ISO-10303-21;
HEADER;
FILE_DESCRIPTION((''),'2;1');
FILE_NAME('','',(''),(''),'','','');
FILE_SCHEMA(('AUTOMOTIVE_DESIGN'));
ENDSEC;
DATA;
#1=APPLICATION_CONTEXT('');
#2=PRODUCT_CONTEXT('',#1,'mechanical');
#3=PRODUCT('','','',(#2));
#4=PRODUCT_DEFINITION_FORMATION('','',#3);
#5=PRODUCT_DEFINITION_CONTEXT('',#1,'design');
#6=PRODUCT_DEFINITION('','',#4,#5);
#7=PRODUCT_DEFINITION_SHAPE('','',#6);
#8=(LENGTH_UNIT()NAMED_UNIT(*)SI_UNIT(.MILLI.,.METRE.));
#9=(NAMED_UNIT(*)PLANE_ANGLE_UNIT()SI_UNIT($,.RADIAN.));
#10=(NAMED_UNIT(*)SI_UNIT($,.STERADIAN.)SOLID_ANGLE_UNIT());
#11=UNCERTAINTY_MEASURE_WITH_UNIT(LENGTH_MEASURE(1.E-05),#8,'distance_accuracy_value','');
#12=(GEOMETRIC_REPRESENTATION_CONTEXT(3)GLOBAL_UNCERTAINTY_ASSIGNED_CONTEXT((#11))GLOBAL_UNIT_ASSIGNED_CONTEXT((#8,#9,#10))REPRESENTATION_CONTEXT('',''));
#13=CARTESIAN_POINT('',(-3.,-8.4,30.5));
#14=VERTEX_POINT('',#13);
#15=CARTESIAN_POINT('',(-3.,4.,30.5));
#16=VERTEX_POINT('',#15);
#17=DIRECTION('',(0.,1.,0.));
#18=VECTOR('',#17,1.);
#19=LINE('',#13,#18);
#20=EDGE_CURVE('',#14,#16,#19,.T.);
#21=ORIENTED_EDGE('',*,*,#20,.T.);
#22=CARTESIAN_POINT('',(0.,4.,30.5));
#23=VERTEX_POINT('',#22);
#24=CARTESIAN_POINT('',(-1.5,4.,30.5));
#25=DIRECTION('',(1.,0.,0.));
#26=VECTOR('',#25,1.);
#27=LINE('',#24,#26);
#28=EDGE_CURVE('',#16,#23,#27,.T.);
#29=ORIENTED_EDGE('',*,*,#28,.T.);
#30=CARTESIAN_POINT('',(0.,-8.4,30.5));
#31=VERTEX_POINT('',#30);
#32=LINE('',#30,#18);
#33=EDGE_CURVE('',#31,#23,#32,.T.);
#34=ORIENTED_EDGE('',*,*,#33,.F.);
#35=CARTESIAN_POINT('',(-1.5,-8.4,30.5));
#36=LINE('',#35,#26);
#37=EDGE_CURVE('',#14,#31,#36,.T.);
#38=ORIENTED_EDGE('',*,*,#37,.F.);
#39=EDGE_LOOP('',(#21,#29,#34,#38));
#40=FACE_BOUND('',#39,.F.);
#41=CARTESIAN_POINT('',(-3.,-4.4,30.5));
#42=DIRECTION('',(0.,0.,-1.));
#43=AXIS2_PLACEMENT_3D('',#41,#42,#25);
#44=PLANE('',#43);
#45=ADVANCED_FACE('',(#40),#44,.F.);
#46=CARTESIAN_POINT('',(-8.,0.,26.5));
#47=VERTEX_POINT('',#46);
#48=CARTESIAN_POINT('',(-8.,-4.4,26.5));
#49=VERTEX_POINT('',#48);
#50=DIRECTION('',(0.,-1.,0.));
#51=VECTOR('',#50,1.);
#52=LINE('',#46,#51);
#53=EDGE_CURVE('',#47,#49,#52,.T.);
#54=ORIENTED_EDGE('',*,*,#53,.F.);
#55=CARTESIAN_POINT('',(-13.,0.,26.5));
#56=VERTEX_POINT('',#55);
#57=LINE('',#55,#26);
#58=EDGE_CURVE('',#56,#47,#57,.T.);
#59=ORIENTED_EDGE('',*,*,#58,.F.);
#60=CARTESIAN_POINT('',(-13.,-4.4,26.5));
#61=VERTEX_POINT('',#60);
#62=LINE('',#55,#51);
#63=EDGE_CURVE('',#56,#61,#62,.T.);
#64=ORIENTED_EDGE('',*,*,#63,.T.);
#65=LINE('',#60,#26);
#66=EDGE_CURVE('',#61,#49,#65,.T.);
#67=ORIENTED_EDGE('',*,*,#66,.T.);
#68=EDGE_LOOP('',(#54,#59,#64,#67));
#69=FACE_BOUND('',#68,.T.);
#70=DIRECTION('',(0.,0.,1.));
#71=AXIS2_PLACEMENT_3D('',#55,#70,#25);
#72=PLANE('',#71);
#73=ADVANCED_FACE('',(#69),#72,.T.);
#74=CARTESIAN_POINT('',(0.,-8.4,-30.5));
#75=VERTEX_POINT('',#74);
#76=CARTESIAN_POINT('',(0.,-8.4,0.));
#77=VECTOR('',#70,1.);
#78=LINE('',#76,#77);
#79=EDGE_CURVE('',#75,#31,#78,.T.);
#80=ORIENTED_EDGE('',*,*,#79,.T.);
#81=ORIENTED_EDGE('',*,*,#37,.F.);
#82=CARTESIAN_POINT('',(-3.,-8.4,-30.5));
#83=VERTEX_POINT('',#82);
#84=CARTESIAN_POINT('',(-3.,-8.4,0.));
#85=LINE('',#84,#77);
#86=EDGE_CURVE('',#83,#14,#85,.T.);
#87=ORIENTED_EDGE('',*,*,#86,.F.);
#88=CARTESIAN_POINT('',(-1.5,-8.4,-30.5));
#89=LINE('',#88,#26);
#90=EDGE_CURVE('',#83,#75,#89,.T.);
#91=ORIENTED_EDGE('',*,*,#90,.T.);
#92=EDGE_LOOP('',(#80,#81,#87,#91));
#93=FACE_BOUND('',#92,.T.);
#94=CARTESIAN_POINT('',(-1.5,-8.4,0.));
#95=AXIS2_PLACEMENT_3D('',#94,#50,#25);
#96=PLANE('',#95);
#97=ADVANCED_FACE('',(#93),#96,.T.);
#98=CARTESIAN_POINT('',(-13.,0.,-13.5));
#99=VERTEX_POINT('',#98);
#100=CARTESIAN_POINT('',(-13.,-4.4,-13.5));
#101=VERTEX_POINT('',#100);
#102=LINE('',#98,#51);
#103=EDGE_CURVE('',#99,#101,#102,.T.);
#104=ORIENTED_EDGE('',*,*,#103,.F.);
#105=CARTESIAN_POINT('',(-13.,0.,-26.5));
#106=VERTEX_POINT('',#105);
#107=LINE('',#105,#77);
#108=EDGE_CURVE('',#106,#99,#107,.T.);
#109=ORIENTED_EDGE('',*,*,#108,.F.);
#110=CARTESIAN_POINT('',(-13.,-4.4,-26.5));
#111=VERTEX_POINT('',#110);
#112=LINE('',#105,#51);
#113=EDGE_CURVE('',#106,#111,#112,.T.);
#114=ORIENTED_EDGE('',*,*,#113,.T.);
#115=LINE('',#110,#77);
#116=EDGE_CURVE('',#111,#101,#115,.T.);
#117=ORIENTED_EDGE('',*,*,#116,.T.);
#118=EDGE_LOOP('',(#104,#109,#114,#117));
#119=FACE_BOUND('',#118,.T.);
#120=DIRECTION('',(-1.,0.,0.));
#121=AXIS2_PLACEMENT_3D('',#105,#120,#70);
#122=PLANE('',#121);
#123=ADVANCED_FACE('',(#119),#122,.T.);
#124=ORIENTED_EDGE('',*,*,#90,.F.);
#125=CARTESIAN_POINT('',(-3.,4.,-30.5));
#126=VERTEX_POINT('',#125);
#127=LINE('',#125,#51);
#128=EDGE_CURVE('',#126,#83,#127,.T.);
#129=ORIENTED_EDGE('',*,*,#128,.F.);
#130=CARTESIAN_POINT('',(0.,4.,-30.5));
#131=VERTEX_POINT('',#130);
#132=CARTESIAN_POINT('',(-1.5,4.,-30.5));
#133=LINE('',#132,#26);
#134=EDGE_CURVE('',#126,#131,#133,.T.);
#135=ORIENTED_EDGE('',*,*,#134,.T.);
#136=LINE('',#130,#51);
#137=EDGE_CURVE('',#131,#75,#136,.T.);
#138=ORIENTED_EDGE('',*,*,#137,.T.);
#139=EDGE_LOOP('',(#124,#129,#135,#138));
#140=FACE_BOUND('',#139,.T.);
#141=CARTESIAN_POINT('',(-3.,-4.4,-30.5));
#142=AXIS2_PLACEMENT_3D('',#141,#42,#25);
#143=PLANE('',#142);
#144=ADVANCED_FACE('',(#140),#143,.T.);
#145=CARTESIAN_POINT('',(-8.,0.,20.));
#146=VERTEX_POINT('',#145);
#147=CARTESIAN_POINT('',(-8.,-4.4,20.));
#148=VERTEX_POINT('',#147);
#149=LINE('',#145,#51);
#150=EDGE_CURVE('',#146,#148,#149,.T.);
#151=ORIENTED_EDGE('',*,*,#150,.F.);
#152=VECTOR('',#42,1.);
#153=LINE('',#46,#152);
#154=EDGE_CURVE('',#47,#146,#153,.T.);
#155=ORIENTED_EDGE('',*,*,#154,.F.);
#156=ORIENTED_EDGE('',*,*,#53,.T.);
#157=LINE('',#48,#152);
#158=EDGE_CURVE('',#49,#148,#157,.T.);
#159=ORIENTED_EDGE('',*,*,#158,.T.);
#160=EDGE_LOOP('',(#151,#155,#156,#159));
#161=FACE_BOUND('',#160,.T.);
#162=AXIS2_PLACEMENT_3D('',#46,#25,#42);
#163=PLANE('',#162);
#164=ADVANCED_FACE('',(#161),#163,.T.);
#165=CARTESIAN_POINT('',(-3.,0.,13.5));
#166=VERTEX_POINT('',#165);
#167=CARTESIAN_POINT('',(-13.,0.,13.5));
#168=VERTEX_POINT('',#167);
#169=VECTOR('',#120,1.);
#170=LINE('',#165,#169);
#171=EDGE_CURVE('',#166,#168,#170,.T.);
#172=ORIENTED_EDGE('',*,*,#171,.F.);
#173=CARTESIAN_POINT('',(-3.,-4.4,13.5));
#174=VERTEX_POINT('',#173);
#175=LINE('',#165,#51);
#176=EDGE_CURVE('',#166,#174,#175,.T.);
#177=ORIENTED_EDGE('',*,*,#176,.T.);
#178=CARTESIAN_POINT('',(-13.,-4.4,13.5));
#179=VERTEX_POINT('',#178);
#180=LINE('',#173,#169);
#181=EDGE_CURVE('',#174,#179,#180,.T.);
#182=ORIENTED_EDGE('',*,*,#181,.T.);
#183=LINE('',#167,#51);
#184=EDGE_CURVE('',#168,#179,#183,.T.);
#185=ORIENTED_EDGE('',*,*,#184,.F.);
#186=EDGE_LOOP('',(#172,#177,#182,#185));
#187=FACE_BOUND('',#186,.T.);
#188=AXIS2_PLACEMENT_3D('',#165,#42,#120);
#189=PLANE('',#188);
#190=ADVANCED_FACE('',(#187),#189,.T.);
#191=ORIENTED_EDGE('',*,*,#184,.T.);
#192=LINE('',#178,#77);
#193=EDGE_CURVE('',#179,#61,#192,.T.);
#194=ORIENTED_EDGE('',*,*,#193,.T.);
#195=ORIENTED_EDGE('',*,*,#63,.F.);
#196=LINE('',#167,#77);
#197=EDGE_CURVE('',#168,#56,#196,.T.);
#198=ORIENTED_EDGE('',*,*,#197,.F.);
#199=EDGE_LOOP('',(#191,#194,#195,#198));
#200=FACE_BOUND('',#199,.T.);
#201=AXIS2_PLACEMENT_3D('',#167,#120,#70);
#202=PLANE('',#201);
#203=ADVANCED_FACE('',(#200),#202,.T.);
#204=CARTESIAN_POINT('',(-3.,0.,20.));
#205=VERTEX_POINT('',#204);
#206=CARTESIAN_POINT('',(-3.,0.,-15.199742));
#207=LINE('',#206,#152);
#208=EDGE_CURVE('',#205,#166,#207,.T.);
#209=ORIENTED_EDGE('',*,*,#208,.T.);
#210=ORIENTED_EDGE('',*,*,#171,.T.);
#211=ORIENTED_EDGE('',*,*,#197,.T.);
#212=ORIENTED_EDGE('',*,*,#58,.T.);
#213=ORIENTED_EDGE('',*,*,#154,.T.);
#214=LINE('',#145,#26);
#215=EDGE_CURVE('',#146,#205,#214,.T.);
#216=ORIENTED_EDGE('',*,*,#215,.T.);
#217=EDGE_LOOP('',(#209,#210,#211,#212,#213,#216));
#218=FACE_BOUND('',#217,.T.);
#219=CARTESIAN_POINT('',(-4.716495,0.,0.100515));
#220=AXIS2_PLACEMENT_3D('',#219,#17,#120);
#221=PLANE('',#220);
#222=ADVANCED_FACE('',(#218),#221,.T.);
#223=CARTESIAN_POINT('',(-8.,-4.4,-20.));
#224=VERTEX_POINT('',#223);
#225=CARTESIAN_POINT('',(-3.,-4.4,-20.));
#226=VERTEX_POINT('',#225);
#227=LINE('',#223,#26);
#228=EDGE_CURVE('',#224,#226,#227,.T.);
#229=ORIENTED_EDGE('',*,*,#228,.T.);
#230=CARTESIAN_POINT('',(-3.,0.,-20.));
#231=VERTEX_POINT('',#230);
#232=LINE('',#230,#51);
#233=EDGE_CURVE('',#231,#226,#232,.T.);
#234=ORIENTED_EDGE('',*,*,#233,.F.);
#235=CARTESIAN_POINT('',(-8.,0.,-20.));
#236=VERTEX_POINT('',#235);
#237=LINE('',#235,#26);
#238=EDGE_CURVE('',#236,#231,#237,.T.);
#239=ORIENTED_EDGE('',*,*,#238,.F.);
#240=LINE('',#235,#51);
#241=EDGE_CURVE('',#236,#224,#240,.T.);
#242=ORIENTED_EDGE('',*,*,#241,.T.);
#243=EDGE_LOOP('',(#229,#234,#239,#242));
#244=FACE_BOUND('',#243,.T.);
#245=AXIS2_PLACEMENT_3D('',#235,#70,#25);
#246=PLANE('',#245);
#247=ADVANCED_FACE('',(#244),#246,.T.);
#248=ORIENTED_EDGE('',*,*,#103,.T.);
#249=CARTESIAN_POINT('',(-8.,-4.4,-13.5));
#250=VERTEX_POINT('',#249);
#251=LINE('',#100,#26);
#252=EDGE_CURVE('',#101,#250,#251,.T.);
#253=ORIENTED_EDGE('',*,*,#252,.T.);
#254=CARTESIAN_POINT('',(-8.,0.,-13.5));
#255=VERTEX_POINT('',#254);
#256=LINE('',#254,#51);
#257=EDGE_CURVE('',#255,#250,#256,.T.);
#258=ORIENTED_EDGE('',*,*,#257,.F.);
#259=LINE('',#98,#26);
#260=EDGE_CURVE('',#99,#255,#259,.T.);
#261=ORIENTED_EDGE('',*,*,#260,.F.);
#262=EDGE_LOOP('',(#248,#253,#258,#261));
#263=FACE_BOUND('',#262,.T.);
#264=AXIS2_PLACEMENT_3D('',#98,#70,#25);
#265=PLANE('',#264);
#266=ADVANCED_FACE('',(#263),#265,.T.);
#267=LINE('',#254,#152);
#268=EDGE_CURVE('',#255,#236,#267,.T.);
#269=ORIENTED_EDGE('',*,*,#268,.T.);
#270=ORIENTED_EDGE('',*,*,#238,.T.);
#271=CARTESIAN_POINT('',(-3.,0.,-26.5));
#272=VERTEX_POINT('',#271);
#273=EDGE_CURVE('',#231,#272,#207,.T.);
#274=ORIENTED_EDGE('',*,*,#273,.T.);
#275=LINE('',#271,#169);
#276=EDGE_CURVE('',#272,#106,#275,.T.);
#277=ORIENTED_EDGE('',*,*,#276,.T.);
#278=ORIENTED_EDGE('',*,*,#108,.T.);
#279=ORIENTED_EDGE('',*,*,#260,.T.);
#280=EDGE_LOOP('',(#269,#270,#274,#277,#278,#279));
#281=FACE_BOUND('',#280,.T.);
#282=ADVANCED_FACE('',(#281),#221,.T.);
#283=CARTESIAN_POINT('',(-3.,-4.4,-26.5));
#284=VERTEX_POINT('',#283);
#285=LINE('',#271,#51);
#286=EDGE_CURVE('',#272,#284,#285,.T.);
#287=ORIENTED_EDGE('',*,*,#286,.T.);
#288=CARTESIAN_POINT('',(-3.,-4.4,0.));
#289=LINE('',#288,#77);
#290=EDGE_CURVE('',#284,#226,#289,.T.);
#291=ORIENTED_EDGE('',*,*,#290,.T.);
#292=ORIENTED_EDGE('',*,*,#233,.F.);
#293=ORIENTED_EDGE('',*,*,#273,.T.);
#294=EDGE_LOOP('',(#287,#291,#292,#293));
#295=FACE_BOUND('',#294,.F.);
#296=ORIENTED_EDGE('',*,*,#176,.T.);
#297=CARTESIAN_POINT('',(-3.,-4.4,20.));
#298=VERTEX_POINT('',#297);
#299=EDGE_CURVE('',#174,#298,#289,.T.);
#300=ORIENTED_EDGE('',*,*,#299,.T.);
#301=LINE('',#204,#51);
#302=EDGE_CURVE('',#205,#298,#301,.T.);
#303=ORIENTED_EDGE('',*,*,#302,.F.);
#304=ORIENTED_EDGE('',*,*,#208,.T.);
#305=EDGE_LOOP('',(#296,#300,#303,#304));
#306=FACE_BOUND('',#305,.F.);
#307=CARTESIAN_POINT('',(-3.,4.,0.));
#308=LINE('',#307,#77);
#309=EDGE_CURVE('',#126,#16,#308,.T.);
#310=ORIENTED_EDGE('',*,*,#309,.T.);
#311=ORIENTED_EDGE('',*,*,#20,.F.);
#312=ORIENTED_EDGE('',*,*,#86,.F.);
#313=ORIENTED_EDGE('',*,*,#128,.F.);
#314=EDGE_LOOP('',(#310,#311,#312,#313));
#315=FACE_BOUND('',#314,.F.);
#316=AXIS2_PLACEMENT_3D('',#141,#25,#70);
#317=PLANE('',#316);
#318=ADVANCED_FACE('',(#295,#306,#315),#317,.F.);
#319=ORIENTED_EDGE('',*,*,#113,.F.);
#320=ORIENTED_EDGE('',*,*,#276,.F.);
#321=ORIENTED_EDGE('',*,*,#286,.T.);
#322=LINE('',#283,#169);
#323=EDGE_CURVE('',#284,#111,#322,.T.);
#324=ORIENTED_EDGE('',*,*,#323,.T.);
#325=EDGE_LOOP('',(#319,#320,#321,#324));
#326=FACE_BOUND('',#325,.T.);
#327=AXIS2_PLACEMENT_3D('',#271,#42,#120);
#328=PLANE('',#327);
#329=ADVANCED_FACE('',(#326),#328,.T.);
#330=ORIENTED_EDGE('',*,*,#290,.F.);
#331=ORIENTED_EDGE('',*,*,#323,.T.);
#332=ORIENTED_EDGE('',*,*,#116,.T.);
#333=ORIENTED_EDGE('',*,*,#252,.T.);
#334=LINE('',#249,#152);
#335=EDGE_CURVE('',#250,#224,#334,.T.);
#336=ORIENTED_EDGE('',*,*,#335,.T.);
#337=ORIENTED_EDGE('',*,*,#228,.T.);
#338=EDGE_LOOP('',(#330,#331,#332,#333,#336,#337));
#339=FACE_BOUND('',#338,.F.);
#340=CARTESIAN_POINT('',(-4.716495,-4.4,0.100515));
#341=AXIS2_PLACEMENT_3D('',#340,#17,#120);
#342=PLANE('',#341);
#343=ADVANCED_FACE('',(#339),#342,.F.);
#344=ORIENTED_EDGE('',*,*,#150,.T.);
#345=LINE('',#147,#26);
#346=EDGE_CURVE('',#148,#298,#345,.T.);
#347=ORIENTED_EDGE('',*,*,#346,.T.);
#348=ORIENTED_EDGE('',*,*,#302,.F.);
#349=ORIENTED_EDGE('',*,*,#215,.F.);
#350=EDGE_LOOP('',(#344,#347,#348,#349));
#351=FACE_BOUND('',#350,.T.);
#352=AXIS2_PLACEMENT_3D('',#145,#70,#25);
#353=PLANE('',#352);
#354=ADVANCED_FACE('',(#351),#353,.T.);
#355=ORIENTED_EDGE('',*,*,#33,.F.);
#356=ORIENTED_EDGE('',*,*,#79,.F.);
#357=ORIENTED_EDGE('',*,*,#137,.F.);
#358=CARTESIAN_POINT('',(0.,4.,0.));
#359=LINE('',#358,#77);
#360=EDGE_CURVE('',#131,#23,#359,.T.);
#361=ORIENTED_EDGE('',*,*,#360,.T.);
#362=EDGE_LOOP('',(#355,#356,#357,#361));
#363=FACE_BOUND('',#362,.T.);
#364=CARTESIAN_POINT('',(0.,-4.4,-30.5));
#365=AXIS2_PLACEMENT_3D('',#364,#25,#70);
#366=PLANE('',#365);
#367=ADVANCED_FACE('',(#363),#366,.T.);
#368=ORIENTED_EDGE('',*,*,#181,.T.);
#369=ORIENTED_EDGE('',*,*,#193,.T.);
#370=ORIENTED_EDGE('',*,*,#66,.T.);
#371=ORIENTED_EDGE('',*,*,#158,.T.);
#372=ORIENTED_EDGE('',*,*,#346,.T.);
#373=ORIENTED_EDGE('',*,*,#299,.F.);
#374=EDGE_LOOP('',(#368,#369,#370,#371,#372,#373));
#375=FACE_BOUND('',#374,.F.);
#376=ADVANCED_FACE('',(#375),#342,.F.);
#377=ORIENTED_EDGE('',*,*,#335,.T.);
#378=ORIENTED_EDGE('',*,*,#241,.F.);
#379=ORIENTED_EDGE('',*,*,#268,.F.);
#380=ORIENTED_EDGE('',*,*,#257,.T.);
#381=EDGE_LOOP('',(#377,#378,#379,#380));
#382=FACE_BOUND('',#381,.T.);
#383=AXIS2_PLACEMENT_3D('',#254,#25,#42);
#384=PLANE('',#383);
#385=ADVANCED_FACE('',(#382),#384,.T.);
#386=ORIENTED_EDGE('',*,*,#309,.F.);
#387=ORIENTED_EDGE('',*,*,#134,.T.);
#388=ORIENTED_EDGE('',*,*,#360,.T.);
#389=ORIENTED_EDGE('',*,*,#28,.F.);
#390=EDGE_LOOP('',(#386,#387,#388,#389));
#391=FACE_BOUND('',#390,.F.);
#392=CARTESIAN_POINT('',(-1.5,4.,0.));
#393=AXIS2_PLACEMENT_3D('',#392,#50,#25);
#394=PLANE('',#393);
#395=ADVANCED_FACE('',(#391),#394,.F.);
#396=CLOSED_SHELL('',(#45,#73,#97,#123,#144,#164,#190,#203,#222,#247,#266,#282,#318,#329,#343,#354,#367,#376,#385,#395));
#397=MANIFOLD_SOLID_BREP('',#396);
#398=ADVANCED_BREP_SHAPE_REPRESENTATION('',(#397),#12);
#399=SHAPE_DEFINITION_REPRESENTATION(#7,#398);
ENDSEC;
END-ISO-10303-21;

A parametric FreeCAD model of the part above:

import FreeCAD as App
import Part
import Sketcher

doc = App.newDocument("Part")
body = doc.addObject("PartDesign::Body", "Body")

# Sketch on XZ plane
sketch1 = doc.addObject("Sketcher::SketchObject", "Sketch")
body.addObject(sketch1)
sketch1.AttachmentSupport = (doc.XZ_Plane, [""])
sketch1.MapMode = "FlatFace"
sketch1.addGeometry(Part.LineSegment(App.Vector(-3, -26.5, 0), App.Vector(-3, -30.5, 0)), False)
sketch1.addGeometry(Part.LineSegment(App.Vector(-3, -30.5, 0), App.Vector(0, -30.5, 0)), False)
sketch1.addGeometry(Part.LineSegment(App.Vector(0, -30.5, 0), App.Vector(0, 30.5, 0)), False)
sketch1.addGeometry(Part.LineSegment(App.Vector(0, 30.5, 0), App.Vector(-3, 30.5, 0)), False)
sketch1.addGeometry(Part.LineSegment(App.Vector(-3, 30.5, 0), App.Vector(-3, 20, 0)), False)
sketch1.addGeometry(Part.LineSegment(App.Vector(-3, 20, 0), App.Vector(-8, 20, 0)), False)
sketch1.addGeometry(Part.LineSegment(App.Vector(-8, 20, 0), App.Vector(-8, 26.5, 0)), False)
sketch1.addGeometry(Part.LineSegment(App.Vector(-8, 26.5, 0), App.Vector(-13, 26.5, 0)), False)
sketch1.addGeometry(Part.LineSegment(App.Vector(-13, 26.5, 0), App.Vector(-13, 13.5, 0)), False)
sketch1.addGeometry(Part.LineSegment(App.Vector(-13, 13.5, 0), App.Vector(-3, 13.5, 0)), False)
sketch1.addGeometry(Part.LineSegment(App.Vector(-3, 13.5, 0), App.Vector(-3, -20, 0)), False)
sketch1.addGeometry(Part.LineSegment(App.Vector(-3, -20, 0), App.Vector(-8, -20, 0)), False)
sketch1.addGeometry(Part.LineSegment(App.Vector(-8, -20, 0), App.Vector(-8, -13.5, 0)), False)
sketch1.addGeometry(Part.LineSegment(App.Vector(-8, -13.5, 0), App.Vector(-13, -13.5, 0)), False)
sketch1.addGeometry(Part.LineSegment(App.Vector(-13, -13.5, 0), App.Vector(-13, -26.5, 0)), False)
sketch1.addGeometry(Part.LineSegment(App.Vector(-13, -26.5, 0), App.Vector(-3, -26.5, 0)), False)
sketch1.addConstraint(Sketcher.Constraint("Coincident", 0, 2, 1, 1))
sketch1.addConstraint(Sketcher.Constraint("Coincident", 1, 2, 2, 1))
sketch1.addConstraint(Sketcher.Constraint("Coincident", 2, 2, 3, 1))
sketch1.addConstraint(Sketcher.Constraint("Coincident", 3, 2, 4, 1))
sketch1.addConstraint(Sketcher.Constraint("Coincident", 4, 2, 5, 1))
sketch1.addConstraint(Sketcher.Constraint("Coincident", 5, 2, 6, 1))
sketch1.addConstraint(Sketcher.Constraint("Coincident", 6, 2, 7, 1))
sketch1.addConstraint(Sketcher.Constraint("Coincident", 7, 2, 8, 1))
sketch1.addConstraint(Sketcher.Constraint("Coincident", 8, 2, 9, 1))
sketch1.addConstraint(Sketcher.Constraint("Coincident", 9, 2, 10, 1))
sketch1.addConstraint(Sketcher.Constraint("Coincident", 10, 2, 11, 1))
sketch1.addConstraint(Sketcher.Constraint("Coincident", 11, 2, 12, 1))
sketch1.addConstraint(Sketcher.Constraint("Coincident", 12, 2, 13, 1))
sketch1.addConstraint(Sketcher.Constraint("Coincident", 13, 2, 14, 1))
sketch1.addConstraint(Sketcher.Constraint("Coincident", 14, 2, 15, 1))
sketch1.addConstraint(Sketcher.Constraint("Coincident", 15, 2, 0, 1))
sketch1.addConstraint(Sketcher.Constraint("Vertical", 0))
sketch1.addConstraint(Sketcher.Constraint("Horizontal", 1))
sketch1.addConstraint(Sketcher.Constraint("Vertical", 2))
sketch1.addConstraint(Sketcher.Constraint("Horizontal", 3))
sketch1.addConstraint(Sketcher.Constraint("Vertical", 4))
sketch1.addConstraint(Sketcher.Constraint("Horizontal", 5))
sketch1.addConstraint(Sketcher.Constraint("Vertical", 6))
sketch1.addConstraint(Sketcher.Constraint("Horizontal", 7))
sketch1.addConstraint(Sketcher.Constraint("Vertical", 8))
sketch1.addConstraint(Sketcher.Constraint("Horizontal", 9))
sketch1.addConstraint(Sketcher.Constraint("Vertical", 10))
sketch1.addConstraint(Sketcher.Constraint("Horizontal", 11))
sketch1.addConstraint(Sketcher.Constraint("Vertical", 12))
sketch1.addConstraint(Sketcher.Constraint("Horizontal", 13))
sketch1.addConstraint(Sketcher.Constraint("Vertical", 14))
sketch1.addConstraint(Sketcher.Constraint("Horizontal", 15))
sketch1.addConstraint(Sketcher.Constraint("Symmetric", 1, 2, 2, 2, -1, 1))
sketch1.addConstraint(Sketcher.Constraint("Symmetric", 4, 2, 10, 2, -1))
sketch1.addConstraint(Sketcher.Constraint("Symmetric", 8, 2, 13, 2, -1))
sketch1.addConstraint(Sketcher.Constraint("Vertical", 0, 2, 3, 2))
sketch1.addConstraint(Sketcher.Constraint("Vertical", 6, 2, 11, 2))
sketch1.addConstraint(Sketcher.Constraint("Equal", 5, 7))
sketch1.addConstraint(Sketcher.Constraint("Equal", 6, 12))
sketch1.addConstraint(Sketcher.Constraint("Equal", 8, 14))
sketch1.addConstraint(Sketcher.Constraint("DistanceX", 1, 1, 1, 2, 3.0))
sketch1.addConstraint(Sketcher.Constraint("DistanceX", 5, 2, 5, 1, 5.0))
sketch1.addConstraint(Sketcher.Constraint("DistanceY", 0, 2, 0, 1, 4.0))
sketch1.addConstraint(Sketcher.Constraint("DistanceY", 2, 1, 2, 2, 61.0))
sketch1.addConstraint(Sketcher.Constraint("DistanceY", 8, 2, 8, 1, 13.0))
pad1 = doc.addObject("PartDesign::Pad", "Pad")
body.addObject(pad1)
pad1.Profile = sketch1
pad1.Length = 4.4

# Sketch on XZ plane
sketch2 = doc.addObject("Sketcher::SketchObject", "Sketch001")
body.addObject(sketch2)
sketch2.AttachmentSupport = (doc.XZ_Plane, [""])
sketch2.MapMode = "FlatFace"
sketch2.AttachmentOffset = App.Placement(App.Vector(0, 0, 4.4), App.Rotation())
sketch2.addGeometry(Part.LineSegment(App.Vector(-3, 30.5, 0), App.Vector(-3, -30.5, 0)), False)
sketch2.addGeometry(Part.LineSegment(App.Vector(-3, -30.5, 0), App.Vector(0, -30.5, 0)), False)
sketch2.addGeometry(Part.LineSegment(App.Vector(0, -30.5, 0), App.Vector(0, 30.5, 0)), False)
sketch2.addGeometry(Part.LineSegment(App.Vector(0, 30.5, 0), App.Vector(-3, 30.5, 0)), False)
sketch2.addConstraint(Sketcher.Constraint("Coincident", 0, 2, 1, 1))
sketch2.addConstraint(Sketcher.Constraint("Coincident", 1, 2, 2, 1))
sketch2.addConstraint(Sketcher.Constraint("Coincident", 2, 2, 3, 1))
sketch2.addConstraint(Sketcher.Constraint("Coincident", 3, 2, 0, 1))
sketch2.addConstraint(Sketcher.Constraint("Vertical", 0))
sketch2.addConstraint(Sketcher.Constraint("Horizontal", 1))
sketch2.addConstraint(Sketcher.Constraint("Vertical", 2))
sketch2.addConstraint(Sketcher.Constraint("Horizontal", 3))
sketch2.addConstraint(Sketcher.Constraint("Symmetric", 1, 2, 2, 2, -1, 1))
sketch2.addConstraint(Sketcher.Constraint("DistanceX", 1, 1, 1, 2, 3.0))
sketch2.addConstraint(Sketcher.Constraint("DistanceY", 0, 2, 0, 1, 61.0))
pad2 = doc.addObject("PartDesign::Pad", "Pad001")
body.addObject(pad2)
pad2.Profile = sketch2
pad2.Type = "TwoLengths"
pad2.Length = 4
pad2.Length2 = 8.4

doc.recompute()
